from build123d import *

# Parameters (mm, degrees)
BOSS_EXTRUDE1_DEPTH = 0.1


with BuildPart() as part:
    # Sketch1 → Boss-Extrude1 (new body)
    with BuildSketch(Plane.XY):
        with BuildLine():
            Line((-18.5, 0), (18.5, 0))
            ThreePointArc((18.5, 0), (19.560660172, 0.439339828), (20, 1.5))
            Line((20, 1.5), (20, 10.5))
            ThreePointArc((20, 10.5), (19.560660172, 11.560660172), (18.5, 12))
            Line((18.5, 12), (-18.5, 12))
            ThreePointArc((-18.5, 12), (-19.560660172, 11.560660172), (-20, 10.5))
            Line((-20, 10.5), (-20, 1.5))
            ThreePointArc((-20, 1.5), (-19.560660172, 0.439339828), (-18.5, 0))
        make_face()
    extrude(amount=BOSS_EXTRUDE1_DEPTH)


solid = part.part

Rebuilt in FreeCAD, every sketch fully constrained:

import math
import FreeCAD as App
import Part
import Sketcher
Q = App.Units.Quantity

doc = App.newDocument("Part")
body = doc.addObject("PartDesign::Body", "Body")

# Sketch on XY plane
sketch1 = doc.addObject("Sketcher::SketchObject", "Sketch")
body.addObject(sketch1)
sketch1.AttachmentSupport = (doc.XY_Plane, [""])
sketch1.MapMode = "FlatFace"
sketch1.addGeometry([
    Part.LineSegment(App.Vector(-18.5, 0, 0), App.Vector(18.5, 0, 0)),  # 0
    Part.ArcOfCircle(Part.Circle(App.Vector(18.5, 1.5, 0), App.Vector(0, 0, 1), 1.5), math.radians(-90), math.radians(0)),  # 1
    Part.LineSegment(App.Vector(20, 1.5, 0), App.Vector(20, 10.5, 0)),  # 2
    Part.ArcOfCircle(Part.Circle(App.Vector(18.5, 10.5, 0), App.Vector(0, 0, 1), 1.5), math.radians(0), math.radians(90)),  # 3
    Part.LineSegment(App.Vector(18.5, 12, 0), App.Vector(-18.5, 12, 0)),  # 4
    Part.ArcOfCircle(Part.Circle(App.Vector(-18.5, 10.5, 0), App.Vector(0, 0, 1), 1.5), math.radians(90), math.radians(180)),  # 5
    Part.LineSegment(App.Vector(-20, 10.5, 0), App.Vector(-20, 1.5, 0)),  # 6
    Part.ArcOfCircle(Part.Circle(App.Vector(-18.5, 1.5, 0), App.Vector(0, 0, 1), 1.5), math.radians(180), math.radians(270)),  # 7
], False)
sketch1.addConstraint([
    Sketcher.Constraint("Tangent", 0, 2, 1, 1),
    Sketcher.Constraint("Tangent", 1, 2, 2, 1),
    Sketcher.Constraint("Tangent", 2, 2, 3, 1),
    Sketcher.Constraint("Tangent", 3, 2, 4, 1),
    Sketcher.Constraint("Tangent", 4, 2, 5, 1),
    Sketcher.Constraint("Tangent", 5, 2, 6, 1),
    Sketcher.Constraint("Tangent", 6, 2, 7, 1),
    Sketcher.Constraint("Tangent", 7, 2, 0, 1),
    Sketcher.Constraint("Horizontal", 0),
    Sketcher.Constraint("Vertical", 2),
    Sketcher.Constraint("Horizontal", 4),
    Sketcher.Constraint("Vertical", 6),
    Sketcher.Constraint("Equal", 1, 3),
    Sketcher.Constraint("Equal", 3, 5),
    Sketcher.Constraint("Equal", 5, 7),
    Sketcher.Constraint("Symmetric", 0, 2, 7, 2, -1, 1),
    Sketcher.Constraint("Radius", 1, Q("1.5 mm")),
    Sketcher.Constraint("DistanceX", 0, 1, 0, 2, Q("37 mm")),
    Sketcher.Constraint("DistanceY", 2, 1, 2, 2, Q("9 mm")),
])
pad1 = doc.addObject("PartDesign::Pad", "Pad")
body.addObject(pad1)
pad1.Profile = sketch1
pad1.Length = 0.1

doc.recompute()
